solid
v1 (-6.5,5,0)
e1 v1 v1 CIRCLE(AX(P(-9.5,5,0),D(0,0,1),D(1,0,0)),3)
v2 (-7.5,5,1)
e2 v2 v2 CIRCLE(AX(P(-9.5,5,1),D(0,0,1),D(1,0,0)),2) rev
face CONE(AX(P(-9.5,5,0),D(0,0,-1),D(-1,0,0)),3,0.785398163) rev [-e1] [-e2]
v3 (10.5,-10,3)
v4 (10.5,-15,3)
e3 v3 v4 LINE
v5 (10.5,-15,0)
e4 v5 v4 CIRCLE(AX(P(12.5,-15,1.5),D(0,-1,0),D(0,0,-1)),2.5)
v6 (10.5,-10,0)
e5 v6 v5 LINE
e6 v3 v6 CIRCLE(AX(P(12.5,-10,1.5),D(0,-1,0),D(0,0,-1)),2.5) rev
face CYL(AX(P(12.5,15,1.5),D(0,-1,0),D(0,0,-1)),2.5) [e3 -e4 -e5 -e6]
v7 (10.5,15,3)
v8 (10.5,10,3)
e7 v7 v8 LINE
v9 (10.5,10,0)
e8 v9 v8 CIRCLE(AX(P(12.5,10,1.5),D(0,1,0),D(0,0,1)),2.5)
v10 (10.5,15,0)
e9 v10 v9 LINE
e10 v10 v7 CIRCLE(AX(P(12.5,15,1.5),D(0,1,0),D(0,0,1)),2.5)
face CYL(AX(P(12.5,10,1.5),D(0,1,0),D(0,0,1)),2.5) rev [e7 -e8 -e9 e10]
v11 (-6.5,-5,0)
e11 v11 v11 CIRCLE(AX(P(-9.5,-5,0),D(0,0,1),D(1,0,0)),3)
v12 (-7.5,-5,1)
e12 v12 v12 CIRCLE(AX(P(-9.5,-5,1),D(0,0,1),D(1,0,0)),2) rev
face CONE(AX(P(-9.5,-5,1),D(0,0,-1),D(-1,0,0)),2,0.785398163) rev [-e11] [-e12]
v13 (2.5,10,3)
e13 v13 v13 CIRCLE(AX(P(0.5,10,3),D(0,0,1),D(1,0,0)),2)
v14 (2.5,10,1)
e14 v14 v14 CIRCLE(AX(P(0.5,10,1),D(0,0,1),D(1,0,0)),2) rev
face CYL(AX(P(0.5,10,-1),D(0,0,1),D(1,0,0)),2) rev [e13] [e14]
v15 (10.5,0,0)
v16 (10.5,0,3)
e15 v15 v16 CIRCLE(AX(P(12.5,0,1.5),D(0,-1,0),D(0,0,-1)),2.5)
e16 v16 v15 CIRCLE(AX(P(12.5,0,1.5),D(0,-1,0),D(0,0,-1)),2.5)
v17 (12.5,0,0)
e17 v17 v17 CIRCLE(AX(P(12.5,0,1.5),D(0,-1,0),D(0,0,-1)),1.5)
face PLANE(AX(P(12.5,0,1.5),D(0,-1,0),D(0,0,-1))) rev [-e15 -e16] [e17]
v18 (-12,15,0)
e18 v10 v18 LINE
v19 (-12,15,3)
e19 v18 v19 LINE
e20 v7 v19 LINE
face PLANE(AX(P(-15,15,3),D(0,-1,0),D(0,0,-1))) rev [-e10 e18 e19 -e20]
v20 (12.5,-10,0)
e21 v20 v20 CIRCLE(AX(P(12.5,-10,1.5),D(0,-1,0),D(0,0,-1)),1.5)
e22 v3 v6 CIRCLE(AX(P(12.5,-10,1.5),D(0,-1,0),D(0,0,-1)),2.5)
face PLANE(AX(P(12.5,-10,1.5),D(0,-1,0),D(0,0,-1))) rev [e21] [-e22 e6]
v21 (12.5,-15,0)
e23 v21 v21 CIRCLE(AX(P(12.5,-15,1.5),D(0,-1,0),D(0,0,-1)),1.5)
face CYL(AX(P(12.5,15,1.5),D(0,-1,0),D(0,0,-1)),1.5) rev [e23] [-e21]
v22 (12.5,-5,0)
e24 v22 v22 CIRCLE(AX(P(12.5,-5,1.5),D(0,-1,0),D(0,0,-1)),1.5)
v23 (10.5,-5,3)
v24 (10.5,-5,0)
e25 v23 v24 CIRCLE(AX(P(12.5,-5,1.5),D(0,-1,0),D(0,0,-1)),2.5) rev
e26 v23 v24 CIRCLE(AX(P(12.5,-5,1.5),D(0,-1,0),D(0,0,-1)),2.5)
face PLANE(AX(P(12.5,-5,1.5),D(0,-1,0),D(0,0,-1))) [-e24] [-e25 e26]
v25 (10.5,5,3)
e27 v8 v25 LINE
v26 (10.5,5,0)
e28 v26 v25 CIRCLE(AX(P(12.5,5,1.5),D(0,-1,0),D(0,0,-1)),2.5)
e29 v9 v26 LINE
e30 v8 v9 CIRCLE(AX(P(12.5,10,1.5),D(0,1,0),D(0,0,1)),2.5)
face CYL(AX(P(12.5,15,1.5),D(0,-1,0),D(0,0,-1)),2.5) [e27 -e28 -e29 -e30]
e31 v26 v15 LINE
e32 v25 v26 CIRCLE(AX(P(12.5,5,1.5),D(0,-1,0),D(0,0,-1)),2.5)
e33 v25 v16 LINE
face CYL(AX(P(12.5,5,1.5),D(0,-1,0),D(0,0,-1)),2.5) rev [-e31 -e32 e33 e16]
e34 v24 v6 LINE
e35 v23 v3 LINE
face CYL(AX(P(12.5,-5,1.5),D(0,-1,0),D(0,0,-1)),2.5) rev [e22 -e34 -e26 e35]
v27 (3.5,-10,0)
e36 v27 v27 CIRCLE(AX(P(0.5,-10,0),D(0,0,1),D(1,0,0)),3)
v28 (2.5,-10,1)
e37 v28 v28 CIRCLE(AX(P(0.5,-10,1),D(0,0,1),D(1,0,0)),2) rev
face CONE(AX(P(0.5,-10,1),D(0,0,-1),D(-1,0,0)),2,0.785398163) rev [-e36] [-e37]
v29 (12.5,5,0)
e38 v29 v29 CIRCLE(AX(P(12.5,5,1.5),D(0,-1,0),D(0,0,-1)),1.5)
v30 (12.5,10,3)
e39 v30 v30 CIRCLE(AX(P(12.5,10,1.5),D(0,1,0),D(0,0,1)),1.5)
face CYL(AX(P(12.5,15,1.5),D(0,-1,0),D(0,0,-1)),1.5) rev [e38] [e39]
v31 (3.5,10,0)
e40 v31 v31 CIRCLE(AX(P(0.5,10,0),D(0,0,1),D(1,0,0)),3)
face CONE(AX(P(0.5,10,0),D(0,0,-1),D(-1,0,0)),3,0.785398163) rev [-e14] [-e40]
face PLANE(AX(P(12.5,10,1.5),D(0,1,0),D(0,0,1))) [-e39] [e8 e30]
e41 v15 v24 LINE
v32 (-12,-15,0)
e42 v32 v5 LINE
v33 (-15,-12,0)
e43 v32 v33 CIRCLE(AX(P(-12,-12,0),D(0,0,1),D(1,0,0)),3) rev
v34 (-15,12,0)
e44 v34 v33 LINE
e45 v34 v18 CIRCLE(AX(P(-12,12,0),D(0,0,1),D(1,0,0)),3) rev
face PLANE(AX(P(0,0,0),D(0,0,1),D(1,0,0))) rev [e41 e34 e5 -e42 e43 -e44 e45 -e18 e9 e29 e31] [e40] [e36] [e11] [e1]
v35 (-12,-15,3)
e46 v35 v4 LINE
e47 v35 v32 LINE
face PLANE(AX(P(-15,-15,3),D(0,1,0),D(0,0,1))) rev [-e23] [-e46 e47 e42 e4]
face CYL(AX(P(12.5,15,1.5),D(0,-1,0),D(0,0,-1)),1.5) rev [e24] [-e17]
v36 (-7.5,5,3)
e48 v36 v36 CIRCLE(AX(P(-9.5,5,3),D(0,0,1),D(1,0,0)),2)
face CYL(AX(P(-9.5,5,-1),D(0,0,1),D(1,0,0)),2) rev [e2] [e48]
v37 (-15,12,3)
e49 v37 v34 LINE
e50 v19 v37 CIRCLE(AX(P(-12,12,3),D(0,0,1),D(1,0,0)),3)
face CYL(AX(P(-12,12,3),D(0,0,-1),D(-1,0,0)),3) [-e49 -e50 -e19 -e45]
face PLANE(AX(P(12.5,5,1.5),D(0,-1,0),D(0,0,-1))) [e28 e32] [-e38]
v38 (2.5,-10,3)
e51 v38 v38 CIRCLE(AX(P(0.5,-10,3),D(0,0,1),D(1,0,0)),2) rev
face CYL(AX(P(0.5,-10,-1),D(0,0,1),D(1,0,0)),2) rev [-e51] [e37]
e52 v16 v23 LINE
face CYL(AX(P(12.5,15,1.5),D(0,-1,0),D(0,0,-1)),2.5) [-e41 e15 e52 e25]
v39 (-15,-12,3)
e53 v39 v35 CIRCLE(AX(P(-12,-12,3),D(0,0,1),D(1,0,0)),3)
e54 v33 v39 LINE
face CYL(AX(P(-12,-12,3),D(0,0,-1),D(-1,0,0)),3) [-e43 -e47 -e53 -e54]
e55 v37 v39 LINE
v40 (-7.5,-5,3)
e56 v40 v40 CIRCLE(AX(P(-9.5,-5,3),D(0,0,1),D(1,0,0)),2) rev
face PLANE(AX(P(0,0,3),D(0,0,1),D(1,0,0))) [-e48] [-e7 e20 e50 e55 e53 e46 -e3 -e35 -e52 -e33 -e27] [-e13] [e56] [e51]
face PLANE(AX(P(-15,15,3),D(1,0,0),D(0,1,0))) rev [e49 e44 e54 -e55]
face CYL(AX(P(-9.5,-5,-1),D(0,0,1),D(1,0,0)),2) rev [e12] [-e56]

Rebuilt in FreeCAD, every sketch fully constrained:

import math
import FreeCAD as App
import Part
import Sketcher

V = App.Vector


def edges_at(feature, points):
    """Names of the edges that pass closest to the given points."""
    edges = feature.Shape.Edges
    near = lambda p: min(range(len(edges)), key=lambda i: edges[i].distToShape(Part.Vertex(*p))[0])
    return sorted({f"Edge{near(p) + 1}" for p in points})

doc = App.newDocument("Part")
params = doc.addObject("Spreadsheet::Sheet", "Params")
for row, (alias, value) in enumerate([
    ("sketch1_width", "30 mm"),
    ("pad1_length", "3 mm"),
    ("sketch2_radius", "2.5 mm"),
    ("sketch2_width", "0.5 mm"),
    ("sketch3_diameter", "5 mm"),
    ("pad2_length", "30 mm"),
    ("fillet_radius", "3 mm"),
    ("sketch4_radius", "2 mm"),
    ("sketch5_diameter", "5 mm"),
    ("pocket3_length", "5 mm"),
    ("sketch6_diameter", "5 mm"),
    ("pocket4_length", "5 mm"),
    ("sketch7_diameter", "5 mm"),
    ("pocket5_length", "5 mm"),
    ("sketch8_diameter", "3 mm"),
    ("chamfer_size", "1 mm"),
], start=1):
    params.set(f"A{row}", alias)
    params.set(f"B{row}", "=" + value)
    params.setAlias(f"B{row}", alias)

body = doc.addObject("PartDesign::Body", "Body")

# Sketch on XY plane
sketch1 = body.newObject("Sketcher::SketchObject", "Sketch")
sketch1.AttachmentSupport = (doc.getObject("XY_Plane"), [""])
sketch1.MapMode = "FlatFace"
sketch1.addGeometry(Part.LineSegment(V(-15, 15, 0), V(-15, -15, 0)), False)
sketch1.addGeometry(Part.LineSegment(V(-15, -15, 0), V(15, -15, 0)), False)
sketch1.addGeometry(Part.LineSegment(V(15, -15, 0), V(15, 15, 0)), False)
sketch1.addGeometry(Part.LineSegment(V(15, 15, 0), V(-15, 15, 0)), False)
sketch1.addConstraint(Sketcher.Constraint("Coincident", 0, 2, 1, 1))
sketch1.addConstraint(Sketcher.Constraint("Coincident", 1, 2, 2, 1))
sketch1.addConstraint(Sketcher.Constraint("Coincident", 2, 2, 3, 1))
sketch1.addConstraint(Sketcher.Constraint("Coincident", 3, 2, 0, 1))
sketch1.addConstraint(Sketcher.Constraint("Vertical", 0))
sketch1.addConstraint(Sketcher.Constraint("Horizontal", 1))
sketch1.addConstraint(Sketcher.Constraint("Vertical", 2))
sketch1.addConstraint(Sketcher.Constraint("Horizontal", 3))
sketch1.addConstraint(Sketcher.Constraint("Symmetric", 0, 2, 2, 2, -1, 1))
sketch1.addConstraint(Sketcher.Constraint("Equal", 3, 0))
sketch1.addConstraint(Sketcher.Constraint("DistanceX", 1, 1, 1, 2, 30.0))
sketch1.setExpression("Constraints[10]", "Params.sketch1_width")
pad1 = body.newObject("PartDesign::Pad", "Pad")
pad1.Profile = sketch1
pad1.setExpression("Length", "Params.pad1_length")

# Sketch on XZ plane
sketch2 = body.newObject("Sketcher::SketchObject", "Sketch001")
sketch2.AttachmentSupport = (doc.getObject("XZ_Plane"), [""])
sketch2.MapMode = "FlatFace"
sketch2.AttachmentOffset = App.Placement(V(0, 0, 15), App.Rotation())
sketch2.addGeometry(Part.LineSegment(V(15, 0, 0), V(15, 1.5, 0)), False)
sketch2.addGeometry(Part.ArcOfCircle(Part.Circle(V(12.5, 1.5, 0), V(0, 0, 1), 2.5), math.radians(-37), math.radians(0)), False)
sketch2.addGeometry(Part.LineSegment(V(14.5, 0, 0), V(15, 0, 0)), False)
sketch2.addGeometry(Part.ArcOfCircle(Part.Circle(V(12.5, 1.5, 0), V(0, 0, 1), 2.5), math.radians(0), math.radians(37)), False)
sketch2.addGeometry(Part.LineSegment(V(15, 1.5, 0), V(15, 3, 0)), False)
sketch2.addGeometry(Part.LineSegment(V(15, 3, 0), V(14.5, 3, 0)), False)
sketch2.addConstraint(Sketcher.Constraint("Tangent", 0, 2, 1, 2))
sketch2.addConstraint(Sketcher.Constraint("Coincident", 1, 1, 2, 1))
sketch2.addConstraint(Sketcher.Constraint("Coincident", 2, 2, 0, 1))
sketch2.addConstraint(Sketcher.Constraint("Tangent", 3, 1, 4, 1))
sketch2.addConstraint(Sketcher.Constraint("Coincident", 4, 2, 5, 1))
sketch2.addConstraint(Sketcher.Constraint("Coincident", 5, 2, 3, 2))
sketch2.addConstraint(Sketcher.Constraint("Vertical", 0))
sketch2.addConstraint(Sketcher.Constraint("Horizontal", 2))
sketch2.addConstraint(Sketcher.Constraint("Vertical", 4))
sketch2.addConstraint(Sketcher.Constraint("Horizontal", 5))
sketch2.addConstraint(Sketcher.Constraint("Coincident", 3, 3, 1, 3))
sketch2.addConstraint(Sketcher.Constraint("Equal", 1, 3))
sketch2.addConstraint(Sketcher.Constraint("PointOnObject", 1, 1, -1))
sketch2.addConstraint(Sketcher.Constraint("Vertical", 1, 1, 5, 2))
sketch2.addConstraint(Sketcher.Constraint("Radius", 1, 2.5))
sketch2.addConstraint(Sketcher.Constraint("DistanceX", 2, 1, 2, 2, 0.5))
sketch2.addConstraint(Sketcher.Constraint("DistanceX", -1, 1, 0, 2, 15.0))
sketch2.setExpression("Constraints[14]", "Params.sketch2_radius")
sketch2.setExpression("Constraints[15]", "Params.sketch2_width")
pocket1 = body.newObject("PartDesign::Pocket", "Pocket")
pocket1.Profile = sketch2
pocket1.Type = "ThroughAll"

# Sketch on XZ plane
sketch3 = body.newObject("Sketcher::SketchObject", "Sketch002")
sketch3.AttachmentSupport = (doc.getObject("XZ_Plane"), [""])
sketch3.MapMode = "FlatFace"
sketch3.AttachmentOffset = App.Placement(V(0, 0, 15), App.Rotation())
sketch3.addGeometry(Part.Circle(V(12.5, 1.5, 0), V(0, 0, 1), 2.5), False)
sketch3.addConstraint(Sketcher.Constraint("Diameter", 0, 5.0))
sketch3.addConstraint(Sketcher.Constraint("DistanceX", -1, 1, 0, 3, 12.5))
sketch3.addConstraint(Sketcher.Constraint("DistanceY", -1, 1, 0, 3, 1.5))
sketch3.setExpression("Constraints[0]", "Params.sketch3_diameter")
pad2 = body.newObject("PartDesign::Pad", "Pad001")
pad2.Profile = sketch3
pad2.setExpression("Length", "Params.pad2_length")
pad2.Reversed = True
doc.recompute()

fillet = body.newObject("PartDesign::Fillet", "Fillet")
fillet.Base = (pad2, edges_at(pad2, [(-15, -15, 1.5), (-15, 15, 1.5)]))
fillet.setExpression("Radius", "Params.fillet_radius")

# Sketch on XY plane
sketch4 = body.newObject("Sketcher::SketchObject", "Sketch003")
sketch4.AttachmentSupport = (doc.getObject("XY_Plane"), [""])
sketch4.MapMode = "FlatFace"
sketch4.AttachmentOffset = App.Placement(V(0, 0, 3), App.Rotation())
sketch4.addGeometry(Part.ArcOfCircle(Part.Circle(V(-9.5, -5, 0), V(0, 0, 1), 2), math.radians(0), math.radians(90)), False)
sketch4.addGeometry(Part.ArcOfCircle(Part.Circle(V(-9.5, -5, 0), V(0, 0, 1), 2), math.radians(90), math.radians(270)), False)
sketch4.addGeometry(Part.ArcOfCircle(Part.Circle(V(-9.5, -5, 0), V(0, 0, 1), 2), math.radians(-90), math.radians(0)), False)
sketch4.addGeometry(Part.ArcOfCircle(Part.Circle(V(0.5, -10, 0), V(0, 0, 1), 2), math.radians(90), math.radians(270)), False)
sketch4.addGeometry(Part.ArcOfCircle(Part.Circle(V(0.5, -10, 0), V(0, 0, 1), 2), math.radians(-90), math.radians(0)), False)
sketch4.addGeometry(Part.ArcOfCircle(Part.Circle(V(0.5, -10, 0), V(0, 0, 1), 2), math.radians(0), math.radians(90)), False)
sketch4.addGeometry(Part.ArcOfCircle(Part.Circle(V(-9.5, 5, 0), V(0, 0, 1), 2), math.radians(90), math.radians(270)), False)
sketch4.addGeometry(Part.ArcOfCircle(Part.Circle(V(-9.5, 5, 0), V(0, 0, 1), 2), math.radians(-90), math.radians(0)), False)
sketch4.addGeometry(Part.ArcOfCircle(Part.Circle(V(-9.5, 5, 0), V(0, 0, 1), 2), math.radians(0), math.radians(90)), False)
sketch4.addGeometry(Part.ArcOfCircle(Part.Circle(V(0.5, 10, 0), V(0, 0, 1), 2), math.radians(90), math.radians(270)), False)
sketch4.addGeometry(Part.ArcOfCircle(Part.Circle(V(0.5, 10, 0), V(0, 0, 1), 2), math.radians(-90), math.radians(0)), False)
sketch4.addGeometry(Part.ArcOfCircle(Part.Circle(V(0.5, 10, 0), V(0, 0, 1), 2), math.radians(0), math.radians(90)), False)
sketch4.addConstraint(Sketcher.Constraint("Tangent", 0, 2, 1, 1))
sketch4.addConstraint(Sketcher.Constraint("Tangent", 1, 2, 2, 1))
sketch4.addConstraint(Sketcher.Constraint("Tangent", 2, 2, 0, 1))
sketch4.addConstraint(Sketcher.Constraint("Tangent", 3, 2, 4, 1))
sketch4.addConstraint(Sketcher.Constraint("Tangent", 4, 2, 5, 1))
sketch4.addConstraint(Sketcher.Constraint("Tangent", 5, 2, 3, 1))
sketch4.addConstraint(Sketcher.Constraint("Tangent", 6, 2, 7, 1))
sketch4.addConstraint(Sketcher.Constraint("Tangent", 7, 2, 8, 1))
sketch4.addConstraint(Sketcher.Constraint("Tangent", 8, 2, 6, 1))
sketch4.addConstraint(Sketcher.Constraint("Tangent", 9, 2, 10, 1))
sketch4.addConstraint(Sketcher.Constraint("Tangent", 10, 2, 11, 1))
sketch4.addConstraint(Sketcher.Constraint("Tangent", 11, 2, 9, 1))
sketch4.addConstraint(Sketcher.Constraint("Equal", 2, 3))
sketch4.addConstraint(Sketcher.Constraint("Equal", 5, 6))
sketch4.addConstraint(Sketcher.Constraint("Equal", 8, 9))
sketch4.addConstraint(Sketcher.Constraint("Symmetric", 0, 3, 6, 3, -1))
sketch4.addConstraint(Sketcher.Constraint("Symmetric", 3, 3, 9, 3, -1))
sketch4.addConstraint(Sketcher.Constraint("Horizontal", 1, 3, 2, 2))
sketch4.addConstraint(Sketcher.Constraint("Horizontal", 5, 3, 4, 2))
sketch4.addConstraint(Sketcher.Constraint("Horizontal", 8, 3, 7, 2))
sketch4.addConstraint(Sketcher.Constraint("Horizontal", 11, 3, 10, 2))
sketch4.addConstraint(Sketcher.Constraint("Vertical", 8, 3, 0, 2))
sketch4.addConstraint(Sketcher.Constraint("Vertical", 0, 2, 1, 2))
sketch4.addConstraint(Sketcher.Constraint("Vertical", 11, 3, 3, 2))
sketch4.addConstraint(Sketcher.Constraint("Vertical", 3, 2, 5, 2))
sketch4.addConstraint(Sketcher.Constraint("Vertical", 1, 2, 6, 2))
sketch4.addConstraint(Sketcher.Constraint("Vertical", 6, 2, 8, 2))
sketch4.addConstraint(Sketcher.Constraint("Vertical", 5, 2, 9, 2))
sketch4.addConstraint(Sketcher.Constraint("Vertical", 9, 2, 11, 2))
sketch4.addConstraint(Sketcher.Constraint("Radius", 0, 2.0))
sketch4.addConstraint(Sketcher.Constraint("DistanceY", 0, 3, -1, 1, 5.0))
sketch4.addConstraint(Sketcher.Constraint("DistanceY", 3, 3, -1, 1, 10.0))
sketch4.addConstraint(Sketcher.Constraint("DistanceX", 1, 3, 3, 3, 10.0))
sketch4.addConstraint(Sketcher.Constraint("DistanceX", 0, 3, -1, 1, 9.5))
sketch4.setExpression("Constraints[29]", "Params.sketch4_radius")
pocket2 = body.newObject("PartDesign::Pocket", "Pocket001")
pocket2.Profile = sketch4
pocket2.Type = "ThroughAll"

# Sketch on XZ plane
sketch5 = body.newObject("Sketcher::SketchObject", "Sketch004")
sketch5.AttachmentSupport = (doc.getObject("XZ_Plane"), [""])
sketch5.MapMode = "FlatFace"
sketch5.AttachmentOffset = App.Placement(V(0, 0, 10), App.Rotation())
sketch5.addGeometry(Part.Circle(V(12.5, 1.5, 0), V(0, 0, 1), 2.5), False)
sketch5.addConstraint(Sketcher.Constraint("Diameter", 0, 5.0))
sketch5.addConstraint(Sketcher.Constraint("DistanceX", -1, 1, 0, 3, 12.5))
sketch5.addConstraint(Sketcher.Constraint("DistanceY", -1, 1, 0, 3, 1.5))
sketch5.setExpression("Constraints[0]", "Params.sketch5_diameter")
pocket3 = body.newObject("PartDesign::Pocket", "Pocket002")
pocket3.Profile = sketch5
pocket3.setExpression("Length", "Params.pocket3_length")

# Sketch on XZ plane
sketch6 = body.newObject("Sketcher::SketchObject", "Sketch005")
sketch6.AttachmentSupport = (doc.getObject("XZ_Plane"), [""])
sketch6.MapMode = "FlatFace"
sketch6.addGeometry(Part.Circle(V(12.5, 1.5, 0), V(0, 0, 1), 2.5), False)
sketch6.addConstraint(Sketcher.Constraint("Diameter", 0, 5.0))
sketch6.addConstraint(Sketcher.Constraint("DistanceX", -1, 1, 0, 3, 12.5))
sketch6.addConstraint(Sketcher.Constraint("DistanceY", -1, 1, 0, 3, 1.5))
sketch6.setExpression("Constraints[0]", "Params.sketch6_diameter")
pocket4 = body.newObject("PartDesign::Pocket", "Pocket003")
pocket4.Profile = sketch6
pocket4.setExpression("Length", "Params.pocket4_length")

# Sketch on XZ plane
sketch7 = body.newObject("Sketcher::SketchObject", "Sketch006")
sketch7.AttachmentSupport = (doc.getObject("XZ_Plane"), [""])
sketch7.MapMode = "FlatFace"
sketch7.AttachmentOffset = App.Placement(V(0, 0, -10), App.Rotation())
sketch7.addGeometry(Part.Circle(V(12.5, 1.5, 0), V(0, 0, 1), 2.5), False)
sketch7.addConstraint(Sketcher.Constraint("Diameter", 0, 5.0))
sketch7.addConstraint(Sketcher.Constraint("DistanceX", -1, 1, 0, 3, 12.5))
sketch7.addConstraint(Sketcher.Constraint("DistanceY", -1, 1, 0, 3, 1.5))
sketch7.setExpression("Constraints[0]", "Params.sketch7_diameter")
pocket5 = body.newObject("PartDesign::Pocket", "Pocket004")
pocket5.Profile = sketch7
pocket5.setExpression("Length", "Params.pocket5_length")

# Sketch on XZ plane
sketch8 = body.newObject("Sketcher::SketchObject", "Sketch007")
sketch8.AttachmentSupport = (doc.getObject("XZ_Plane"), [""])
sketch8.MapMode = "FlatFace"
sketch8.AttachmentOffset = App.Placement(V(0, 0, 15), App.Rotation())
sketch8.addGeometry(Part.Circle(V(12.5, 1.5, 0), V(0, 0, 1), 1.5), False)
sketch8.addConstraint(Sketcher.Constraint("Diameter", 0, 3.0))
sketch8.addConstraint(Sketcher.Constraint("DistanceX", -1, 1, 0, 3, 12.5))
sketch8.addConstraint(Sketcher.Constraint("DistanceY", -1, 1, 0, 3, 1.5))
sketch8.setExpression("Constraints[0]", "Params.sketch8_diameter")
pocket6 = body.newObject("PartDesign::Pocket", "Pocket005")
pocket6.Profile = sketch8
pocket6.Type = "ThroughAll"
doc.recompute()

chamfer = body.newObject("PartDesign::Chamfer", "Chamfer")
chamfer.Base = (pocket6, edges_at(pocket6, [
    (-8.086, -3.586, 0),
    (-1.5, -10, 0),
    (-11.5, 5, 0),
    (-1.5, 10, 0),
]))
chamfer.setExpression("Size", "Params.chamfer_size")

doc.recompute()
